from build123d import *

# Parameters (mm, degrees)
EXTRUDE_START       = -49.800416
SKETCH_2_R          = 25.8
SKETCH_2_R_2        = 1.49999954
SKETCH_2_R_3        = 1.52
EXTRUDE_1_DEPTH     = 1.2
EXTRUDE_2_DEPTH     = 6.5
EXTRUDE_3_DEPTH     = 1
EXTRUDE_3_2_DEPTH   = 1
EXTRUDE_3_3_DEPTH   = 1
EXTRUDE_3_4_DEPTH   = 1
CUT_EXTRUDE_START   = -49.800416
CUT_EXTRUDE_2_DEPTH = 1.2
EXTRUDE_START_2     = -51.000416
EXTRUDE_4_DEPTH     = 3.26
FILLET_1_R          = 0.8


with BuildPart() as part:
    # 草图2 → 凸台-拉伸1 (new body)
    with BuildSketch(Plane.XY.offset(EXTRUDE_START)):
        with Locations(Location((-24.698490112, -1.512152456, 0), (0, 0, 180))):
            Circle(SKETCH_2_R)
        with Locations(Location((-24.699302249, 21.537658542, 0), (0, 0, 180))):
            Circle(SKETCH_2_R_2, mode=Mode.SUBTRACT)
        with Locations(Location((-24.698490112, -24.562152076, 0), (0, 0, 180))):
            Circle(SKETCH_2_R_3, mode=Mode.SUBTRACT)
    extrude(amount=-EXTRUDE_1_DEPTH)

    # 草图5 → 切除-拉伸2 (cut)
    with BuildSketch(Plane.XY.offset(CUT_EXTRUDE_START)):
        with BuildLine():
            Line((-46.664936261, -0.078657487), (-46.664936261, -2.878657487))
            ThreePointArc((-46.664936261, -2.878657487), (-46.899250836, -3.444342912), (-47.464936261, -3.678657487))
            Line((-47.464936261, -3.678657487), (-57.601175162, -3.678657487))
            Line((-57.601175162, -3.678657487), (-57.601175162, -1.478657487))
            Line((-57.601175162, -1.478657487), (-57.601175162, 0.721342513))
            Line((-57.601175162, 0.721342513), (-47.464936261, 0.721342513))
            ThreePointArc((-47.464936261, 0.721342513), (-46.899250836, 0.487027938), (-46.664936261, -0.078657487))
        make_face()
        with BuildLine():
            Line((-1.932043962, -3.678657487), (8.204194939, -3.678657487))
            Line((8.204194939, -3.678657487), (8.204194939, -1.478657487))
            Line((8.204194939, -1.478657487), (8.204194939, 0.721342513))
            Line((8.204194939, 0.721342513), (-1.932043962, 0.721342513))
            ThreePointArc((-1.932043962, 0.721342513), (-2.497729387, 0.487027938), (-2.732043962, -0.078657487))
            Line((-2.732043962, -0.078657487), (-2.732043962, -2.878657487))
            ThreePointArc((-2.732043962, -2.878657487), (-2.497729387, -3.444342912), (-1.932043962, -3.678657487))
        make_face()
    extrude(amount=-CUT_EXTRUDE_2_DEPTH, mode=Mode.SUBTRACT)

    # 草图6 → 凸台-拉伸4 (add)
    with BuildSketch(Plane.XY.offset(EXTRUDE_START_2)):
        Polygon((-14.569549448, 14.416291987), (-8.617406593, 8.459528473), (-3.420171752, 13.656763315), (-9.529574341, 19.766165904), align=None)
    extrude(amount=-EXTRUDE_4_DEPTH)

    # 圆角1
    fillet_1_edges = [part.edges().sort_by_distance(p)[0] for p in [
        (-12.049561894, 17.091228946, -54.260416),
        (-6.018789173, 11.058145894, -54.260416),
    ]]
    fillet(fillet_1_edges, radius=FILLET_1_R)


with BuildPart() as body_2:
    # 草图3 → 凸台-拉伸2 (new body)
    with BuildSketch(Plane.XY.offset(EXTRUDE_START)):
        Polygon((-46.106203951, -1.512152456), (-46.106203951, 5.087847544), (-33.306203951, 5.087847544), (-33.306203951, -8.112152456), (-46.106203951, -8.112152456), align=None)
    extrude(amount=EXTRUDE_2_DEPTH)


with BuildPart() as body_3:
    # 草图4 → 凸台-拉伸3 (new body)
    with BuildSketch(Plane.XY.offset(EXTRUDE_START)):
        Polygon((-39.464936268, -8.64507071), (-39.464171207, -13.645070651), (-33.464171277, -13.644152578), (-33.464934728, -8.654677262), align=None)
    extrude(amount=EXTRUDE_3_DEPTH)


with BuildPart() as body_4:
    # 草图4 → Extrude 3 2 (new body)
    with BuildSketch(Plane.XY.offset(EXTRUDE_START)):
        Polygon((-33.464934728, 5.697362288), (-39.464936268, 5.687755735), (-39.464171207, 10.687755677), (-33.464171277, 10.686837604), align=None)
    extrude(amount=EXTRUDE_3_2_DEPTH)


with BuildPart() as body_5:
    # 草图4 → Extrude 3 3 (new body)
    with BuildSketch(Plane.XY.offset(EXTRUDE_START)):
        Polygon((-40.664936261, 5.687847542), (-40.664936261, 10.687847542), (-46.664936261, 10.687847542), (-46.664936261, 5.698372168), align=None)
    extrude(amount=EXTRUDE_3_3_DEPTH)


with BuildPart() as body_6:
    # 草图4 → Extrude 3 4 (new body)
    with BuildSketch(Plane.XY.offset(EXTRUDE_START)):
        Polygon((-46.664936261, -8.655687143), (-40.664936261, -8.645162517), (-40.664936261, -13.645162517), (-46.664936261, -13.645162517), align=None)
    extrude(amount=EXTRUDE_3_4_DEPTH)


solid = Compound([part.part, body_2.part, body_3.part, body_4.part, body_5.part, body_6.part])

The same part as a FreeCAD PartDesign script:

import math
import FreeCAD as App
import Part
import Sketcher

V = App.Vector
Q = App.Units.Quantity


def edges_at(feature, points):
    """Names of the edges that pass closest to the given points."""
    edges = feature.Shape.Edges
    near = lambda p: min(range(len(edges)), key=lambda i: edges[i].distToShape(Part.Vertex(*p))[0])
    return sorted({f"Edge{near(p) + 1}" for p in points})

doc = App.newDocument("Part")
params = doc.addObject("Spreadsheet::Sheet", "Params")
for row, (alias, value) in enumerate([
    ("sketch1_diameter", "2.999999 mm"),
    ("sketch1_diameter2", "51.6 mm"),
    ("sketch1_diameter3", "3.04 mm"),
    ("pad1_length", "1.2 mm"),
    ("sketch2_radius", "0.8 mm"),
    ("sketch2_height", "2.8 mm"),
    ("pocket1_length", "1.2 mm"),
    ("sketch3_length", "7.35 mm"),
    ("sketch3_length2", "8.64 mm"),
    ("pad2_length", "3.26 mm"),
    ("fillet_radius", "0.8 mm"),
    ("sketch4_width", "12.8 mm"),
    ("sketch4_height", "13.2 mm"),
    ("pad3_length", "6.5 mm"),
    ("sketch5_length", "5 mm"),
    ("sketch5_length2", "6 mm"),
    ("pad4_length", "1 mm"),
    ("sketch6_length", "6 mm"),
    ("sketch6_length2", "5 mm"),
    ("pad5_length", "1 mm"),
    ("sketch7_width", "6 mm"),
    ("sketch7_height", "5 mm"),
    ("pad6_length", "1 mm"),
    ("sketch8_width", "6 mm"),
    ("sketch8_height", "5 mm"),
    ("pad7_length", "1 mm"),
], start=1):
    params.set(f"A{row}", alias)
    params.set(f"B{row}", "=" + value)
    params.setAlias(f"B{row}", alias)

body = doc.addObject("PartDesign::Body", "Body")

sketch1 = body.newObject("Sketcher::SketchObject", "Sketch")
sketch1.AttachmentSupport = (doc.getObject("XY_Plane"), [""])
sketch1.MapMode = "FlatFace"
sketch1.AttachmentOffset = App.Placement(V(0, 0, -49.800416), App.Rotation())
sketch1.addGeometry([
    Part.Circle(V(-24.7, -1.5, 0), V(0, 0, 1), 25.8),
    Part.Circle(V(-24.7, 21.5, 0), V(0, 0, 1), 1.5),
    Part.Circle(V(-24.7, -24.6, 0), V(0, 0, 1), 1.5),
], False)
sketch1.addConstraint([
    Sketcher.Constraint("Vertical", 0, 3, 2, 3),
    Sketcher.Constraint("Diameter", 1, 2.999999),
    Sketcher.Constraint("Diameter", 0, 51.6),
    Sketcher.Constraint("Diameter", 2, 3.04),
    Sketcher.Constraint("DistanceY", 2, 3, 0, 3, 23.05),
    Sketcher.Constraint("DistanceX", 0, 3, -1, 1, 24.69849),
    Sketcher.Constraint("DistanceY", -1, 1, 1, 3, 21.537659),
    Sketcher.Constraint("DistanceY", 0, 3, 1, 3, 23.049811),
    Sketcher.Constraint("DistanceX", 1, 3, -1, 1, 24.699302),
])
sketch1.setExpression("Constraints[1]", "Params.sketch1_diameter")
sketch1.setExpression("Constraints[2]", "Params.sketch1_diameter2")
sketch1.setExpression("Constraints[3]", "Params.sketch1_diameter3")
pad1 = body.newObject("PartDesign::Pad", "Pad")
pad1.Profile = sketch1
pad1.setExpression("Length", "Params.pad1_length")
pad1.Reversed = True

sketch2 = body.newObject("Sketcher::SketchObject", "Sketch001")
sketch2.AttachmentSupport = (doc.getObject("XY_Plane"), [""])
sketch2.MapMode = "FlatFace"
sketch2.AttachmentOffset = App.Placement(V(0, 0, -49.800416), App.Rotation())
sketch2.addGeometry([
    Part.LineSegment(V(-46.7, -2.9, 0), V(-46.7, -0.1, 0)),
    Part.ArcOfCircle(Part.Circle(V(-47.5, -0.1, 0), V(0, 0, 1), 0.8), math.radians(0), math.radians(90)),
    Part.LineSegment(V(-47.5, 0.7, 0), V(-57.6, 0.7, 0)),
    Part.LineSegment(V(-57.6, 0.7, 0), V(-57.6, -3.7, 0)),
    Part.LineSegment(V(-57.6, -3.7, 0), V(-47.5, -3.7, 0)),
    Part.ArcOfCircle(Part.Circle(V(-47.5, -2.9, 0), V(0, 0, 1), 0.8), math.radians(-90), math.radians(0)),
    Part.LineSegment(V(-1.9, -3.7, 0), V(8.2, -3.7, 0)),
    Part.LineSegment(V(8.2, -3.7, 0), V(8.2, 0.7, 0)),
    Part.LineSegment(V(8.2, 0.7, 0), V(-1.9, 0.7, 0)),
    Part.ArcOfCircle(Part.Circle(V(-1.9, -0.1, 0), V(0, 0, 1), 0.8), math.radians(90), math.radians(180)),
    Part.LineSegment(V(-2.7, -0.1, 0), V(-2.7, -2.9, 0)),
    Part.ArcOfCircle(Part.Circle(V(-1.9, -2.9, 0), V(0, 0, 1), 0.8), math.radians(180), math.radians(270)),
], False)
sketch2.addConstraint([
    Sketcher.Constraint("Tangent", 0, 2, 1, 1),
    Sketcher.Constraint("Tangent", 1, 2, 2, 1),
    Sketcher.Constraint("Coincident", 2, 2, 3, 1),
    Sketcher.Constraint("Coincident", 3, 2, 4, 1),
    Sketcher.Constraint("Tangent", 4, 2, 5, 1),
    Sketcher.Constraint("Tangent", 5, 2, 0, 1),
    Sketcher.Constraint("Coincident", 6, 2, 7, 1),
    Sketcher.Constraint("Coincident", 7, 2, 8, 1),
    Sketcher.Constraint("Tangent", 8, 2, 9, 1),
    Sketcher.Constraint("Tangent", 9, 2, 10, 1),
    Sketcher.Constraint("Tangent", 10, 2, 11, 1),
    Sketcher.Constraint("Tangent", 11, 2, 6, 1),
    Sketcher.Constraint("Vertical", 0),
    Sketcher.Constraint("Horizontal", 2),
    Sketcher.Constraint("Vertical", 3),
    Sketcher.Constraint("Horizontal", 4),
    Sketcher.Constraint("Horizontal", 6),
    Sketcher.Constraint("Vertical", 7),
    Sketcher.Constraint("Horizontal", 8),
    Sketcher.Constraint("Vertical", 10),
    Sketcher.Constraint("Equal", 1, 5),
    Sketcher.Constraint("Equal", 5, 9),
    Sketcher.Constraint("Equal", 9, 11),
    Sketcher.Constraint("Horizontal", 1, 3, 9, 3),
    Sketcher.Constraint("Horizontal", 5, 3, 11, 3),
    Sketcher.Constraint("Equal", 4, 6),
    Sketcher.Constraint("Radius", 1, 0.8),
    Sketcher.Constraint("DistanceY", 0, 1, 0, 2, 2.8),
    Sketcher.Constraint("DistanceX", 2, 2, 2, 1, 10.136239),
    Sketcher.Constraint("DistanceX", 2, 2, 9, 3, 55.669131),
    Sketcher.Constraint("DistanceX", 1, 3, -1, 1, 47.464936),
    Sketcher.Constraint("DistanceY", 1, 3, -1, 1, 0.078657),
])
sketch2.setExpression("Constraints[26]", "Params.sketch2_radius")
sketch2.setExpression("Constraints[27]", "Params.sketch2_height")
pocket1 = body.newObject("PartDesign::Pocket", "Pocket")
pocket1.Profile = sketch2
pocket1.setExpression("Length", "Params.pocket1_length")

sketch3 = body.newObject("Sketcher::SketchObject", "Sketch002")
sketch3.AttachmentSupport = (doc.getObject("XY_Plane"), [""])
sketch3.MapMode = "FlatFace"
sketch3.AttachmentOffset = App.Placement(V(0, 0, -51.000416), App.Rotation())
sketch3.addGeometry([
    Part.LineSegment(V(-15, 14, 0), V(-9, 8, 0)),
    Part.LineSegment(V(-9, 8, 0), V(-3, 14, 0)),
    Part.LineSegment(V(-3, 14, 0), V(-10, 20, 0)),
    Part.LineSegment(V(-10, 20, 0), V(-15, 14, 0)),
], False)
sketch3.addConstraint([
    Sketcher.Constraint("Coincident", 0, 2, 1, 1),
    Sketcher.Constraint("Coincident", 1, 2, 2, 1),
    Sketcher.Constraint("Coincident", 2, 2, 3, 1),
    Sketcher.Constraint("Coincident", 3, 2, 0, 1),
    Sketcher.Constraint("Perpendicular", 1, 2),
    Sketcher.Constraint("Equal", 1, 3),
    Sketcher.Constraint("Angle", 1, Q("45 deg")),
    Sketcher.Constraint("Distance", 1, 7.35),
    Sketcher.Constraint("Distance", 2, 8.64),
    Sketcher.Constraint("Distance", 0, 8.420869),
    Sketcher.Constraint("DistanceY", -1, 1, 0, 2, 8.459528),
    Sketcher.Constraint("DistanceX", 1, 2, -1, 1, 3.420172),
])
sketch3.setExpression("Constraints[7]", "Params.sketch3_length")
sketch3.setExpression("Constraints[8]", "Params.sketch3_length2")
pad2 = body.newObject("PartDesign::Pad", "Pad001")
pad2.Profile = sketch3
pad2.setExpression("Length", "Params.pad2_length")
pad2.Reversed = True
doc.recompute()

fillet = body.newObject("PartDesign::Fillet", "Fillet")
fillet.Base = (pad2, edges_at(pad2, [(-12.05, 17.091, -54.26), (-6.019, 11.058, -54.26)]))
fillet.setExpression("Radius", "Params.fillet_radius")
body2 = doc.addObject("PartDesign::Body", "Body001")

sketch4 = body2.newObject("Sketcher::SketchObject", "Sketch003")
sketch4.AttachmentSupport = (doc.getObject("XY_Plane001"), [""])
sketch4.MapMode = "FlatFace"
sketch4.AttachmentOffset = App.Placement(V(0, 0, -49.800416), App.Rotation())
sketch4.addGeometry([
    Part.LineSegment(V(-46, 5, 0), V(-46, -8, 0)),
    Part.LineSegment(V(-46, -8, 0), V(-33, -8, 0)),
    Part.LineSegment(V(-33, -8, 0), V(-33, 5, 0)),
    Part.LineSegment(V(-33, 5, 0), V(-46, 5, 0)),
], False)
sketch4.addConstraint([
    Sketcher.Constraint("Coincident", 0, 2, 1, 1),
    Sketcher.Constraint("Coincident", 1, 2, 2, 1),
    Sketcher.Constraint("Coincident", 2, 2, 3, 1),
    Sketcher.Constraint("Coincident", 3, 2, 0, 1),
    Sketcher.Constraint("Vertical", 0),
    Sketcher.Constraint("Horizontal", 1),
    Sketcher.Constraint("Vertical", 2),
    Sketcher.Constraint("Horizontal", 3),
    Sketcher.Constraint("DistanceX", 1, 1, 1, 2, 12.8),
    Sketcher.Constraint("DistanceY", 0, 2, 0, 1, 13.2),
    Sketcher.Constraint("DistanceX", 0, 2, -1, 1, 46.106204),
    Sketcher.Constraint("DistanceY", 0, 2, -1, 1, 8.112152),
])
sketch4.setExpression("Constraints[8]", "Params.sketch4_width")
sketch4.setExpression("Constraints[9]", "Params.sketch4_height")
pad3 = body2.newObject("PartDesign::Pad", "Pad002")
pad3.Profile = sketch4
pad3.setExpression("Length", "Params.pad3_length")
body3 = doc.addObject("PartDesign::Body", "Body002")

sketch5 = body3.newObject("Sketcher::SketchObject", "Sketch004")
sketch5.AttachmentSupport = (doc.getObject("XY_Plane002"), [""])
sketch5.MapMode = "FlatFace"
sketch5.AttachmentOffset = App.Placement(V(0, 0, -49.800416), App.Rotation())
sketch5.addGeometry([
    Part.LineSegment(V(-39.5, -8.6, 0), V(-39.5, -13.6, 0)),
    Part.LineSegment(V(-39.5, -13.6, 0), V(-33.5, -13.6, 0)),
    Part.LineSegment(V(-33.5, -13.6, 0), V(-33.5, -8.7, 0)),
    Part.LineSegment(V(-33.5, -8.7, 0), V(-39.5, -8.6, 0)),
], False)
sketch5.addConstraint([
    Sketcher.Constraint("Coincident", 0, 2, 1, 1),
    Sketcher.Constraint("Coincident", 1, 2, 2, 1),
    Sketcher.Constraint("Coincident", 2, 2, 3, 1),
    Sketcher.Constraint("Coincident", 3, 2, 0, 1),
    Sketcher.Constraint("Perpendicular", 0, 1),
    Sketcher.Constraint("Perpendicular", 1, 2),
    Sketcher.Constraint("Distance", 0, 5.0),
    Sketcher.Constraint("Distance", 1, 6.0),
    Sketcher.Constraint("DistanceX", 0, 2, -1, 1, 39.464171),
    Sketcher.Constraint("DistanceY", 0, 2, -1, 1, 13.645071),
    Sketcher.Constraint("DistanceY", 0, 2, 1, 2, 0.000918),
    Sketcher.Constraint("Distance", 2, 4.989475),
])
sketch5.setExpression("Constraints[6]", "Params.sketch5_length")
sketch5.setExpression("Constraints[7]", "Params.sketch5_length2")
pad4 = body3.newObject("PartDesign::Pad", "Pad003")
pad4.Profile = sketch5
pad4.setExpression("Length", "Params.pad4_length")
body4 = doc.addObject("PartDesign::Body", "Body003")

sketch6 = body4.newObject("Sketcher::SketchObject", "Sketch005")
sketch6.AttachmentSupport = (doc.getObject("XY_Plane003"), [""])
sketch6.MapMode = "FlatFace"
sketch6.AttachmentOffset = App.Placement(V(0, 0, -49.800416), App.Rotation())
sketch6.addGeometry([
    Part.LineSegment(V(-39.5, 5.7, 0), V(-33.5, 5.7, 0)),
    Part.LineSegment(V(-33.5, 5.7, 0), V(-33.5, 10.7, 0)),
    Part.LineSegment(V(-33.5, 10.7, 0), V(-39.5, 10.7, 0)),
    Part.LineSegment(V(-39.5, 10.7, 0), V(-39.5, 5.7, 0)),
], False)
sketch6.addConstraint([
    Sketcher.Constraint("Coincident", 0, 2, 1, 1),
    Sketcher.Constraint("Coincident", 1, 2, 2, 1),
    Sketcher.Constraint("Coincident", 2, 2, 3, 1),
    Sketcher.Constraint("Coincident", 3, 2, 0, 1),
    Sketcher.Constraint("Perpendicular", 1, 2),
    Sketcher.Constraint("Perpendicular", 2, 3),
    Sketcher.Constraint("Distance", 2, 6.0),
    Sketcher.Constraint("Distance", 3, 5.0),
    Sketcher.Constraint("DistanceX", 1, 2, -1, 1, 33.464171),
    Sketcher.Constraint("DistanceY", 1, 2, 2, 2, 0.000918),
    Sketcher.Constraint("Distance", 1, 4.989475),
    Sketcher.Constraint("DistanceY", -1, 1, 0, 2, 5.697362),
])
sketch6.setExpression("Constraints[6]", "Params.sketch6_length")
sketch6.setExpression("Constraints[7]", "Params.sketch6_length2")
pad5 = body4.newObject("PartDesign::Pad", "Pad004")
pad5.Profile = sketch6
pad5.setExpression("Length", "Params.pad5_length")
body5 = doc.addObject("PartDesign::Body", "Body004")

sketch7 = body5.newObject("Sketcher::SketchObject", "Sketch006")
sketch7.AttachmentSupport = (doc.getObject("XY_Plane004"), [""])
sketch7.MapMode = "FlatFace"
sketch7.AttachmentOffset = App.Placement(V(0, 0, -49.800416), App.Rotation())
sketch7.addGeometry([
    Part.LineSegment(V(-40.7, 5.7, 0), V(-40.7, 10.7, 0)),
    Part.LineSegment(V(-40.7, 10.7, 0), V(-46.7, 10.7, 0)),
    Part.LineSegment(V(-46.7, 10.7, 0), V(-46.7, 5.7, 0)),
    Part.LineSegment(V(-46.7, 5.7, 0), V(-40.7, 5.7, 0)),
], False)
sketch7.addConstraint([
    Sketcher.Constraint("Coincident", 0, 2, 1, 1),
    Sketcher.Constraint("Coincident", 1, 2, 2, 1),
    Sketcher.Constraint("Coincident", 2, 2, 3, 1),
    Sketcher.Constraint("Coincident", 3, 2, 0, 1),
    Sketcher.Constraint("Vertical", 0),
    Sketcher.Constraint("Horizontal", 1),
    Sketcher.Constraint("Vertical", 2),
    Sketcher.Constraint("DistanceX", 1, 2, 1, 1, 6.0),
    Sketcher.Constraint("DistanceY", 0, 1, 0, 2, 5.0),
    Sketcher.Constraint("DistanceY", 2, 2, 2, 1, 4.989475),
    Sketcher.Constraint("DistanceX", 0, 2, -1, 1, 40.664936),
    Sketcher.Constraint("DistanceY", -1, 1, 0, 2, 10.687848),
])
sketch7.setExpression("Constraints[7]", "Params.sketch7_width")
sketch7.setExpression("Constraints[8]", "Params.sketch7_height")
pad6 = body5.newObject("PartDesign::Pad", "Pad005")
pad6.Profile = sketch7
pad6.setExpression("Length", "Params.pad6_length")
body6 = doc.addObject("PartDesign::Body", "Body005")

sketch8 = body6.newObject("Sketcher::SketchObject", "Sketch007")
sketch8.AttachmentSupport = (doc.getObject("XY_Plane005"), [""])
sketch8.MapMode = "FlatFace"
sketch8.AttachmentOffset = App.Placement(V(0, 0, -49.800416), App.Rotation())
sketch8.addGeometry([
    Part.LineSegment(V(-40.7, -8.6, 0), V(-46.7, -8.7, 0)),
    Part.LineSegment(V(-46.7, -8.7, 0), V(-46.7, -13.6, 0)),
    Part.LineSegment(V(-46.7, -13.6, 0), V(-40.7, -13.6, 0)),
    Part.LineSegment(V(-40.7, -13.6, 0), V(-40.7, -8.6, 0)),
], False)
sketch8.addConstraint([
    Sketcher.Constraint("Coincident", 0, 2, 1, 1),
    Sketcher.Constraint("Coincident", 1, 2, 2, 1),
    Sketcher.Constraint("Coincident", 2, 2, 3, 1),
    Sketcher.Constraint("Coincident", 3, 2, 0, 1),
    Sketcher.Constraint("Vertical", 1),
    Sketcher.Constraint("Horizontal", 2),
    Sketcher.Constraint("Vertical", 3),
    Sketcher.Constraint("DistanceX", 2, 1, 2, 2, 6.0),
    Sketcher.Constraint("DistanceY", 3, 1, 3, 2, 5.0),
    Sketcher.Constraint("DistanceY", 1, 2, 1, 1, 4.989475),
    Sketcher.Constraint("DistanceX", 0, 2, -1, 1, 46.664936),
    Sketcher.Constraint("DistanceY", 0, 2, -1, 1, 8.655687),
])
sketch8.setExpression("Constraints[7]", "Params.sketch8_width")
sketch8.setExpression("Constraints[8]", "Params.sketch8_height")
pad7 = body6.newObject("PartDesign::Pad", "Pad006")
pad7.Profile = sketch8
pad7.setExpression("Length", "Params.pad7_length")

doc.recompute()
